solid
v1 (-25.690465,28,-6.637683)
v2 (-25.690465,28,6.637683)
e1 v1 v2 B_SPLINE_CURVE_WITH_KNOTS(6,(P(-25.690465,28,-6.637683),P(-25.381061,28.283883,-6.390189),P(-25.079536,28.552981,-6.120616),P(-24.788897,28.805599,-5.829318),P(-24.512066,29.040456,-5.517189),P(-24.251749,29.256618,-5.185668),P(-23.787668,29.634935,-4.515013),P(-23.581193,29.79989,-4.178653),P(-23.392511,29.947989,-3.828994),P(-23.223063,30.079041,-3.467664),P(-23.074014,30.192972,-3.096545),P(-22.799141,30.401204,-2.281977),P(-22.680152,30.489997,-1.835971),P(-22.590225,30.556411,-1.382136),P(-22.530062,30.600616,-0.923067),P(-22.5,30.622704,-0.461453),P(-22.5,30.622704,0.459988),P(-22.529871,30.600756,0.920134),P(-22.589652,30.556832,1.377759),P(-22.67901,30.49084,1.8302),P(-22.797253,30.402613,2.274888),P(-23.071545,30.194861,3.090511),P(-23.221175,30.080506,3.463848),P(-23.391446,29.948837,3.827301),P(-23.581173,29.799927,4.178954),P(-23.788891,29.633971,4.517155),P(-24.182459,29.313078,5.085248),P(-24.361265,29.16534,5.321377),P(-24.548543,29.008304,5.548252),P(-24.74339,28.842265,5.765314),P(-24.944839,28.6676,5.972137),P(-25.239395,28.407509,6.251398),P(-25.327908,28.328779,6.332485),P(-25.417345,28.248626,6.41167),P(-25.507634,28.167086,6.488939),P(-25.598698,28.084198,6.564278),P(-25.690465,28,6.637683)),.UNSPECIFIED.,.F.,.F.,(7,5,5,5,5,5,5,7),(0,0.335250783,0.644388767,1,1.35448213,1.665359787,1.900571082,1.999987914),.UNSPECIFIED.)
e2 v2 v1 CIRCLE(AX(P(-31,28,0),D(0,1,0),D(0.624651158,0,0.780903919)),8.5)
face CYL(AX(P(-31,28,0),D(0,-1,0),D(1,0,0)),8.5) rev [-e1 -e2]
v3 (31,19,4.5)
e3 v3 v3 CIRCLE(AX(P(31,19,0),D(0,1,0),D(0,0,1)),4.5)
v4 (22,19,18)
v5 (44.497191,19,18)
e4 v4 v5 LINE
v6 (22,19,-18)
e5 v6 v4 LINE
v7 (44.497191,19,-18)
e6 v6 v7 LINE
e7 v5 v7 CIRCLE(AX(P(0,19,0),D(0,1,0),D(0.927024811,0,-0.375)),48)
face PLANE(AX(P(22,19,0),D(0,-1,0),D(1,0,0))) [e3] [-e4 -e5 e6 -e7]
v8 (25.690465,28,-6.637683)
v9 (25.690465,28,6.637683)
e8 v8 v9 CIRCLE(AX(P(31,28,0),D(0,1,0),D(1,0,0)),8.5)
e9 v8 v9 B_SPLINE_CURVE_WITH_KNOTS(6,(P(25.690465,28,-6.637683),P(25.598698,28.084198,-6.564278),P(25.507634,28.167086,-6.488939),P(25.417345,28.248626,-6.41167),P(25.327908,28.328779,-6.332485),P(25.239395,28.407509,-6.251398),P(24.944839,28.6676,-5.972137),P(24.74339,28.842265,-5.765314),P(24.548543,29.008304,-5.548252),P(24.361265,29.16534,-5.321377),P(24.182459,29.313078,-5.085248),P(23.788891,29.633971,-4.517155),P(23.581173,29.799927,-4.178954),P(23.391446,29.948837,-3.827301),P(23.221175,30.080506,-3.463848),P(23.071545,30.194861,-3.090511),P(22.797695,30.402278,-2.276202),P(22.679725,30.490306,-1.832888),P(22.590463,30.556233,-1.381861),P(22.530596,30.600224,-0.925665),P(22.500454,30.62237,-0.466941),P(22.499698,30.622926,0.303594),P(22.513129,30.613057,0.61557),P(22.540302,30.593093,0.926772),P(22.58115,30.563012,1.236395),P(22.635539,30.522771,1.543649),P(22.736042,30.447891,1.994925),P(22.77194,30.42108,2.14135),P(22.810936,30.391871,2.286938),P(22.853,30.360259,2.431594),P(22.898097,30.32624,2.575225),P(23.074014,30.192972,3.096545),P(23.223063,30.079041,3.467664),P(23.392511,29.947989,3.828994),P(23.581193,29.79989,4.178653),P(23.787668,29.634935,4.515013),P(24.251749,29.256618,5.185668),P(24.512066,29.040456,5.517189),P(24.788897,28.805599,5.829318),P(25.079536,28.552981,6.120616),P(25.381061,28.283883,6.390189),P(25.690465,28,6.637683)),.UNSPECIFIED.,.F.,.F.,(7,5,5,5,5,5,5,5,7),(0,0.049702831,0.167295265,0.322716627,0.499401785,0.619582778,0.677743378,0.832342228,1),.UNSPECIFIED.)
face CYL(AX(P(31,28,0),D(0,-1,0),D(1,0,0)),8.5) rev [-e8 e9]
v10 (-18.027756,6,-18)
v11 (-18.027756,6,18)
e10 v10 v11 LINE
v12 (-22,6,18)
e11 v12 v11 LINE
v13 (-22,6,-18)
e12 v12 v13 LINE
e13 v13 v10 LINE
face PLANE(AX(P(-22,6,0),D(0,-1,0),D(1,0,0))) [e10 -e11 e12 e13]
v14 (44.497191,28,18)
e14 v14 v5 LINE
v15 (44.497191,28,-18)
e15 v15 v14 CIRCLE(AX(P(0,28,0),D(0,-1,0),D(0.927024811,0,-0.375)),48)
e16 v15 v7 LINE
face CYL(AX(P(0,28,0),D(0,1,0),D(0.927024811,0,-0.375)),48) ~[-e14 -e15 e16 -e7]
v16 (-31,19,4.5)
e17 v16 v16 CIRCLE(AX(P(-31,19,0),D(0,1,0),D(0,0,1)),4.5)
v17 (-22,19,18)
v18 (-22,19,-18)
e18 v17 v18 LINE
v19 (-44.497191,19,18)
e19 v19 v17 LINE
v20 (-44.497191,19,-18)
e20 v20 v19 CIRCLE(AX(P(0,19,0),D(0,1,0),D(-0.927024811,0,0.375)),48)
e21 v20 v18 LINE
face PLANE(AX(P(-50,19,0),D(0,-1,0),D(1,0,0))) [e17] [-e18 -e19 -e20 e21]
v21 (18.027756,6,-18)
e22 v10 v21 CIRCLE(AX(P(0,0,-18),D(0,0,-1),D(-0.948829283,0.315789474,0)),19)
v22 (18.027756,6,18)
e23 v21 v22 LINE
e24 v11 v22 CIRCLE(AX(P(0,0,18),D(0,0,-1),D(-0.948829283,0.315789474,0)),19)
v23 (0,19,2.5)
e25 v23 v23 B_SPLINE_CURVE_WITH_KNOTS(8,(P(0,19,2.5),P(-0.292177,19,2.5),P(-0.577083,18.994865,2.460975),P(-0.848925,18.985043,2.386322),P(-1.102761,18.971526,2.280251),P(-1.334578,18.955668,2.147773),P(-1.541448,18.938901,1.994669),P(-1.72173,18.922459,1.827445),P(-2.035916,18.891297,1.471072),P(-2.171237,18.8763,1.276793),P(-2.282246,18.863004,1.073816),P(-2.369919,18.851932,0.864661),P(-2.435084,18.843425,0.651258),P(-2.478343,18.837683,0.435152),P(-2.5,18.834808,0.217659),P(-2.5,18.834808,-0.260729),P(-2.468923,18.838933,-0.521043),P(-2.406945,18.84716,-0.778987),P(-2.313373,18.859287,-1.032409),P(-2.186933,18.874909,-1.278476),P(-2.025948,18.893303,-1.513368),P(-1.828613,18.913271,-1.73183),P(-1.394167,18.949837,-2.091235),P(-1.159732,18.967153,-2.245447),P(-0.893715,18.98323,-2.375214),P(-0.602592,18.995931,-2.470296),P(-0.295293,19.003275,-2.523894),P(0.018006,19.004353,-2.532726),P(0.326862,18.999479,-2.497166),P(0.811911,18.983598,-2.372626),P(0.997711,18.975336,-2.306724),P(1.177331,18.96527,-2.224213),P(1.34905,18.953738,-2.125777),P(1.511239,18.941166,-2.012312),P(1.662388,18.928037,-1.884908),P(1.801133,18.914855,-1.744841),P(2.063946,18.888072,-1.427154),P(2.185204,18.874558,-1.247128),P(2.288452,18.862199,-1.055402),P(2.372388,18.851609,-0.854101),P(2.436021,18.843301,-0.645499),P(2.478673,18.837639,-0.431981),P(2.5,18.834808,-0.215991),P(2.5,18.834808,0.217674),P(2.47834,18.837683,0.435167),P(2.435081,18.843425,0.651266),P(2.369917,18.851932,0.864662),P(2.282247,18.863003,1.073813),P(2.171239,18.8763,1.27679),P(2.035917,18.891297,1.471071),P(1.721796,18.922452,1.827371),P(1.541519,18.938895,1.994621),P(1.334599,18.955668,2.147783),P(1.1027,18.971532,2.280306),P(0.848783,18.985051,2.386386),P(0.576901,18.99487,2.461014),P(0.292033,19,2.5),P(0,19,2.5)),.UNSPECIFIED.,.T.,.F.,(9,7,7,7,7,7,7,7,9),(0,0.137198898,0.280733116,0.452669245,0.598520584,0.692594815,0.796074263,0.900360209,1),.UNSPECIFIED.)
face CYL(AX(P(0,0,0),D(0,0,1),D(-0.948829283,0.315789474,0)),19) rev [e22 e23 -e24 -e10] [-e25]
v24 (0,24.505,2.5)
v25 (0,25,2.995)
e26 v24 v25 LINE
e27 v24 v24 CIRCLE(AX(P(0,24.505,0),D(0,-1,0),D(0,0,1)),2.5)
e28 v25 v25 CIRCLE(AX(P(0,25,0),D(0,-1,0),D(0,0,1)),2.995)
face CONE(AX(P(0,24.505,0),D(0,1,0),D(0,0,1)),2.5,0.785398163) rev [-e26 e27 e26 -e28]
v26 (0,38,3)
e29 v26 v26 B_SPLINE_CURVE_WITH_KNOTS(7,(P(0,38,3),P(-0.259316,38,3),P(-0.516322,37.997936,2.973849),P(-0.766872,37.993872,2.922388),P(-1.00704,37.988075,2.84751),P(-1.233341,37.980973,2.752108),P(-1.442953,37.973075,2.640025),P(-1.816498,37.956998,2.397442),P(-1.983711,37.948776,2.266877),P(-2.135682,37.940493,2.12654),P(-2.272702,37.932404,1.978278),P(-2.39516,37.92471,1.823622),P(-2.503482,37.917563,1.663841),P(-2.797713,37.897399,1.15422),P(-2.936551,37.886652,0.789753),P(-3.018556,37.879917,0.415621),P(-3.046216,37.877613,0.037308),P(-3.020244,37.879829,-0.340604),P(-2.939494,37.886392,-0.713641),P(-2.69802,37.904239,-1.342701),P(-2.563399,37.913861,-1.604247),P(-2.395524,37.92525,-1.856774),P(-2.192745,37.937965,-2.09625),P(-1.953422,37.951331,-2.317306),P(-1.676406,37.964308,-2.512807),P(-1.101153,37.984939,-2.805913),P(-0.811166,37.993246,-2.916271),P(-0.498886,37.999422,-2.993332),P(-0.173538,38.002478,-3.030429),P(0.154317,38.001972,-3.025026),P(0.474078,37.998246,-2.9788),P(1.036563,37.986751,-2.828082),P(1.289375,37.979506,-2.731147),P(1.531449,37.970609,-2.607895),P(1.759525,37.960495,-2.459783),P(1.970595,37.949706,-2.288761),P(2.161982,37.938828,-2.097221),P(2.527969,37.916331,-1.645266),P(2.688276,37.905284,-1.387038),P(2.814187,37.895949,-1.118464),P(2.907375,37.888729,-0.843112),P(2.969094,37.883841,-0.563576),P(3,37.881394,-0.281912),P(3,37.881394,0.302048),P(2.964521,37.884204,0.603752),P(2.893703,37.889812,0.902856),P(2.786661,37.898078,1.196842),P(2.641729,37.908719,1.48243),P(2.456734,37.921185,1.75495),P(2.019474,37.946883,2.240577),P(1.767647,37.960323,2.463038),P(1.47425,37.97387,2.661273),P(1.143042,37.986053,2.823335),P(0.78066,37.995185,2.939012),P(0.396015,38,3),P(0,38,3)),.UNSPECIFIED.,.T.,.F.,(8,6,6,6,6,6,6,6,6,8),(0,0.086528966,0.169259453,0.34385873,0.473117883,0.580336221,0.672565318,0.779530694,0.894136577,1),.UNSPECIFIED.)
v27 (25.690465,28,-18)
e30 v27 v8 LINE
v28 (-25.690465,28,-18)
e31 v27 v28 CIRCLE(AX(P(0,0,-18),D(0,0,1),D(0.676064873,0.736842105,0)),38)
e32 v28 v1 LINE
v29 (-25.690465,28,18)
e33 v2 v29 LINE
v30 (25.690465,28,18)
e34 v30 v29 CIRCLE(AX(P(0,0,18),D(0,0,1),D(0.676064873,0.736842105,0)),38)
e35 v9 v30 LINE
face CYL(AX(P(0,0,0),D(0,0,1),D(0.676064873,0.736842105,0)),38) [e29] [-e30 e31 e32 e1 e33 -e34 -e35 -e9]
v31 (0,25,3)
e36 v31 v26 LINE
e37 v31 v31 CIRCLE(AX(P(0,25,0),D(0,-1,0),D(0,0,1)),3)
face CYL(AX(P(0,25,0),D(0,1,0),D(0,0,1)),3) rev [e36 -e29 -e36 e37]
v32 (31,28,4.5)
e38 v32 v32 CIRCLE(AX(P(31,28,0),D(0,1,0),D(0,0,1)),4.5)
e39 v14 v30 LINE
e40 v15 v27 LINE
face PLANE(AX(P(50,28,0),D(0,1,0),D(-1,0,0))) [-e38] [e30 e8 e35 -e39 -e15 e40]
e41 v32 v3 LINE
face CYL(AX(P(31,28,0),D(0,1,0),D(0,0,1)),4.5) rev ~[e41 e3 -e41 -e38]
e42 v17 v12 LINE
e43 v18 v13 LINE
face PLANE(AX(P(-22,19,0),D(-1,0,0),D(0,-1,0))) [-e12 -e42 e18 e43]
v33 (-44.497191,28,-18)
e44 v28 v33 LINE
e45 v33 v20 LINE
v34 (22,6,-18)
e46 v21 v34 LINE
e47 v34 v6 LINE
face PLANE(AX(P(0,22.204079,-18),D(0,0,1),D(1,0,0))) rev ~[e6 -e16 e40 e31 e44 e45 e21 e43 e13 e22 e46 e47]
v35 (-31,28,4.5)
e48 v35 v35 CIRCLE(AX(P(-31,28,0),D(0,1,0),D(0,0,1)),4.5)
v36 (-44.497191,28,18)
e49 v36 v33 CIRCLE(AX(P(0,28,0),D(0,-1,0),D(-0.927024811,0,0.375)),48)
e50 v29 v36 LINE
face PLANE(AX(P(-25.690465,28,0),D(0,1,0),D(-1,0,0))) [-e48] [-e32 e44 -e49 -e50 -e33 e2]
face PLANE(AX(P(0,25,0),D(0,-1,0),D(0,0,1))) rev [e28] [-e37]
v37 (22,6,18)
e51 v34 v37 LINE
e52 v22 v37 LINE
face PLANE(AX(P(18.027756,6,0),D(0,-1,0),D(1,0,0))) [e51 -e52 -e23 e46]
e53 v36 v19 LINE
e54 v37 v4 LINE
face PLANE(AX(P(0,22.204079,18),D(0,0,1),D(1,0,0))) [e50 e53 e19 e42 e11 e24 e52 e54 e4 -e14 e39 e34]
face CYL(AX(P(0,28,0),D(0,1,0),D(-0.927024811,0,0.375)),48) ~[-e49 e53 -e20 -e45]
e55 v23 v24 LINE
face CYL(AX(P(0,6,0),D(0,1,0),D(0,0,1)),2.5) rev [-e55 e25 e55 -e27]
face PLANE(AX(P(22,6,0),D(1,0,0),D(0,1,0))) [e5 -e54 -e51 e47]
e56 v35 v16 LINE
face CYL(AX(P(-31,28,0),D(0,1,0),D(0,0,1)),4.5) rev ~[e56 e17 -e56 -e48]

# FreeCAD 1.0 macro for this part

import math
import FreeCAD as App
import Part
import Sketcher

V = App.Vector
Q = App.Units.Quantity


def add_polygon(sketch, points):
    """Adds a closed chain of lines whose ends are joined by coincident constraints."""
    first, n = sketch.GeometryCount, len(points)
    for a, b in zip(points, points[1:] + points[:1]):
        sketch.addGeometry(Part.LineSegment(App.Vector(*a, 0), App.Vector(*b, 0)), False)
    for i in range(n):
        sketch.addConstraint(Sketcher.Constraint("Coincident", first + i, 2, first + (i + 1) % n, 1))

doc = App.newDocument("Part")
params = doc.addObject("Spreadsheet::Sheet", "Params")
for row, (alias, value) in enumerate([
    ("sketch1_radius", "19 mm"),
    ("sketch1_radius2", "38 mm"),
    ("sketch1_width", "28 mm"),
    ("sketch1_height", "13 mm"),
    ("sketch1_height2", "9 mm"),
    ("pad1_length", "36 mm"),
    ("sketch2_diameter", "9 mm"),
    ("sketch3_diameter", "17 mm"),
    ("sketch4_radius", "48 mm"),
    ("sketch4_height", "36 mm"),
    ("sketch5_diameter", "17 mm"),
    ("sketch6_width", "32 mm"),
    ("sketch6_width2", "13 mm"),
    ("sketch6_height", "3 mm"),
    ("sketch6_height2", "2.5 mm"),
    ("groove_angle", "360 deg"),
], start=1):
    params.set(f"A{row}", alias)
    params.set(f"B{row}", "=" + value)
    params.setAlias(f"B{row}", alias)

body = doc.addObject("PartDesign::Body", "Body")

# Sketch on XY plane
sketch1 = body.newObject("Sketcher::SketchObject", "Sketch")
sketch1.AttachmentSupport = (doc.getObject("XY_Plane"), [""])
sketch1.MapMode = "FlatFace"
sketch1.addGeometry(Part.LineSegment(V(-22, 6, 0), V(-18.027756, 6, 0)), False)
sketch1.addGeometry(Part.ArcOfCircle(Part.Circle(V(0, 0, 0), V(0, 0, 1), 19), math.radians(18.40848), math.radians(161.59152)), False)
sketch1.addGeometry(Part.LineSegment(V(18.027756, 6, 0), V(22, 6, 0)), False)
sketch1.addGeometry(Part.LineSegment(V(22, 6, 0), V(22, 19, 0)), False)
sketch1.addGeometry(Part.LineSegment(V(22, 19, 0), V(50, 19, 0)), False)
sketch1.addGeometry(Part.LineSegment(V(50, 19, 0), V(50, 28, 0)), False)
sketch1.addGeometry(Part.LineSegment(V(50, 28, 0), V(25.690465, 28, 0)), False)
sketch1.addGeometry(Part.ArcOfCircle(Part.Circle(V(0, 0, 0), V(0, 0, 1), 38), math.radians(47.463102), math.radians(132.536898)), False)
sketch1.addGeometry(Part.LineSegment(V(-25.690465, 28, 0), V(-50, 28, 0)), False)
sketch1.addGeometry(Part.LineSegment(V(-50, 28, 0), V(-50, 19, 0)), False)
sketch1.addGeometry(Part.LineSegment(V(-50, 19, 0), V(-22, 19, 0)), False)
sketch1.addGeometry(Part.LineSegment(V(-22, 19, 0), V(-22, 6, 0)), False)
sketch1.addConstraint(Sketcher.Constraint("Coincident", 0, 2, 1, 2))
sketch1.addConstraint(Sketcher.Constraint("Coincident", 1, 1, 2, 1))
sketch1.addConstraint(Sketcher.Constraint("Coincident", 2, 2, 3, 1))
sketch1.addConstraint(Sketcher.Constraint("Coincident", 3, 2, 4, 1))
sketch1.addConstraint(Sketcher.Constraint("Coincident", 4, 2, 5, 1))
sketch1.addConstraint(Sketcher.Constraint("Coincident", 5, 2, 6, 1))
sketch1.addConstraint(Sketcher.Constraint("Coincident", 6, 2, 7, 1))
sketch1.addConstraint(Sketcher.Constraint("Coincident", 7, 2, 8, 1))
sketch1.addConstraint(Sketcher.Constraint("Coincident", 8, 2, 9, 1))
sketch1.addConstraint(Sketcher.Constraint("Coincident", 9, 2, 10, 1))
sketch1.addConstraint(Sketcher.Constraint("Coincident", 10, 2, 11, 1))
sketch1.addConstraint(Sketcher.Constraint("Coincident", 11, 2, 0, 1))
sketch1.addConstraint(Sketcher.Constraint("Horizontal", 0))
sketch1.addConstraint(Sketcher.Constraint("Horizontal", 2))
sketch1.addConstraint(Sketcher.Constraint("Vertical", 3))
sketch1.addConstraint(Sketcher.Constraint("Horizontal", 4))
sketch1.addConstraint(Sketcher.Constraint("Vertical", 5))
sketch1.addConstraint(Sketcher.Constraint("Horizontal", 6))
sketch1.addConstraint(Sketcher.Constraint("Horizontal", 8))
sketch1.addConstraint(Sketcher.Constraint("Vertical", 9))
sketch1.addConstraint(Sketcher.Constraint("Horizontal", 10))
sketch1.addConstraint(Sketcher.Constraint("Vertical", 11))
sketch1.addConstraint(Sketcher.Constraint("Coincident", 1, 3, -1, 1))
sketch1.addConstraint(Sketcher.Constraint("Coincident", 7, 3, -1, 1))
sketch1.addConstraint(Sketcher.Constraint("Symmetric", 5, 2, 8, 2, -2))
sketch1.addConstraint(Sketcher.Constraint("Symmetric", 3, 2, 10, 2, -2))
sketch1.addConstraint(Sketcher.Constraint("Horizontal", 0, 2, 1, 1))
sketch1.addConstraint(Sketcher.Constraint("Radius", 1, 19.0))
sketch1.addConstraint(Sketcher.Constraint("Radius", 7, 38.0))
sketch1.addConstraint(Sketcher.Constraint("DistanceX", 4, 1, 4, 2, 28.0))
sketch1.addConstraint(Sketcher.Constraint("DistanceY", 3, 1, 3, 2, 13.0))
sketch1.addConstraint(Sketcher.Constraint("DistanceY", 5, 1, 5, 2, 9.0))
sketch1.addConstraint(Sketcher.Constraint("DistanceY", -1, 1, 0, 2, 6.0))
sketch1.addConstraint(Sketcher.Constraint("DistanceX", -1, 1, 2, 2, 22.0))
sketch1.setExpression("Constraints[27]", "Params.sketch1_radius")
sketch1.setExpression("Constraints[28]", "Params.sketch1_radius2")
sketch1.setExpression("Constraints[29]", "Params.sketch1_width")
sketch1.setExpression("Constraints[30]", "Params.sketch1_height")
sketch1.setExpression("Constraints[31]", "Params.sketch1_height2")
pad1 = body.newObject("PartDesign::Pad", "Pad")
pad1.Profile = sketch1
pad1.setExpression("Length", "Params.pad1_length")
pad1.Midplane = True

# Sketch on XZ plane
sketch2 = body.newObject("Sketcher::SketchObject", "Sketch001")
sketch2.AttachmentSupport = (doc.getObject("XZ_Plane"), [""])
sketch2.MapMode = "FlatFace"
sketch2.AttachmentOffset = App.Placement(V(0, 0, -28), App.Rotation())
sketch2.addGeometry(Part.Circle(V(-31, 0, 0), V(0, 0, 1), 4.5), False)
sketch2.addGeometry(Part.Circle(V(31, 0, 0), V(0, 0, 1), 4.5), False)
sketch2.addConstraint(Sketcher.Constraint("Equal", 0, 1))
sketch2.addConstraint(Sketcher.Constraint("Symmetric", 0, 3, 1, 3, -1, 1))
sketch2.addConstraint(Sketcher.Constraint("PointOnObject", 0, 3, -1))
sketch2.addConstraint(Sketcher.Constraint("Diameter", 0, 9.0))
sketch2.addConstraint(Sketcher.Constraint("DistanceX", 0, 3, -1, 1, 31.0))
sketch2.setExpression("Constraints[3]", "Params.sketch2_diameter")
pocket1 = body.newObject("PartDesign::Pocket", "Pocket")
pocket1.Profile = sketch2
pocket1.Type = "ThroughAll"
pocket1.Reversed = True

# Sketch on XZ plane
sketch3 = body.newObject("Sketcher::SketchObject", "Sketch002")
sketch3.AttachmentSupport = (doc.getObject("XZ_Plane"), [""])
sketch3.MapMode = "FlatFace"
sketch3.AttachmentOffset = App.Placement(V(0, 0, -28), App.Rotation())
sketch3.addGeometry(Part.Circle(V(-31, 0, 0), V(0, 0, 1), 8.5), False)
sketch3.addConstraint(Sketcher.Constraint("PointOnObject", 0, 3, -1))
sketch3.addConstraint(Sketcher.Constraint("Diameter", 0, 17.0))
sketch3.addConstraint(Sketcher.Constraint("DistanceX", 0, 3, -1, 1, 31.0))
sketch3.setExpression("Constraints[1]", "Params.sketch3_diameter")
pocket2 = body.newObject("PartDesign::Pocket", "Pocket001")
pocket2.Profile = sketch3
pocket2.Type = "ThroughAll"

# Sketch on XZ plane
sketch4 = body.newObject("Sketcher::SketchObject", "Sketch003")
sketch4.AttachmentSupport = (doc.getObject("XZ_Plane"), [""])
sketch4.MapMode = "FlatFace"
sketch4.AttachmentOffset = App.Placement(V(0, 0, -28), App.Rotation())
sketch4.addGeometry(Part.LineSegment(V(-44.497191, -18, 0), V(-50, -18, 0)), False)
sketch4.addGeometry(Part.LineSegment(V(-50, -18, 0), V(-50, 18, 0)), False)
sketch4.addGeometry(Part.LineSegment(V(-50, 18, 0), V(-44.497191, 18, 0)), False)
sketch4.addGeometry(Part.ArcOfCircle(Part.Circle(V(0, 0, 0), V(0, 0, 1), 48), math.radians(157.975687), math.radians(202.024313)), False)
sketch4.addGeometry(Part.LineSegment(V(50, -18, 0), V(44.497191, -18, 0)), False)
sketch4.addGeometry(Part.ArcOfCircle(Part.Circle(V(0, 0, 0), V(0, 0, 1), 48), math.radians(-22.024313), math.radians(22.024313)), False)
sketch4.addGeometry(Part.LineSegment(V(44.497191, 18, 0), V(50, 18, 0)), False)
sketch4.addGeometry(Part.LineSegment(V(50, 18, 0), V(50, -18, 0)), False)
sketch4.addConstraint(Sketcher.Constraint("Coincident", 0, 2, 1, 1))
sketch4.addConstraint(Sketcher.Constraint("Coincident", 1, 2, 2, 1))
sketch4.addConstraint(Sketcher.Constraint("Coincident", 2, 2, 3, 1))
sketch4.addConstraint(Sketcher.Constraint("Coincident", 3, 2, 0, 1))
sketch4.addConstraint(Sketcher.Constraint("Coincident", 4, 2, 5, 1))
sketch4.addConstraint(Sketcher.Constraint("Coincident", 5, 2, 6, 1))
sketch4.addConstraint(Sketcher.Constraint("Coincident", 6, 2, 7, 1))
sketch4.addConstraint(Sketcher.Constraint("Coincident", 7, 2, 4, 1))
sketch4.addConstraint(Sketcher.Constraint("Horizontal", 0))
sketch4.addConstraint(Sketcher.Constraint("Vertical", 1))
sketch4.addConstraint(Sketcher.Constraint("Horizontal", 2))
sketch4.addConstraint(Sketcher.Constraint("Horizontal", 4))
sketch4.addConstraint(Sketcher.Constraint("Horizontal", 6))
sketch4.addConstraint(Sketcher.Constraint("Vertical", 7))
sketch4.addConstraint(Sketcher.Constraint("Coincident", 3, 3, -1, 1))
sketch4.addConstraint(Sketcher.Constraint("Coincident", 5, 3, -1, 1))
sketch4.addConstraint(Sketcher.Constraint("Equal", 3, 5))
sketch4.addConstraint(Sketcher.Constraint("Symmetric", 0, 2, 6, 2, -1, 1))
sketch4.addConstraint(Sketcher.Constraint("Horizontal", 3, 2, 4, 2))
sketch4.addConstraint(Sketcher.Constraint("Horizontal", 2, 2, 5, 2))
sketch4.addConstraint(Sketcher.Constraint("Radius", 3, 48.0))
sketch4.addConstraint(Sketcher.Constraint("DistanceY", 1, 1, 1, 2, 36.0))
sketch4.addConstraint(Sketcher.Constraint("DistanceX", 0, 2, -1, 1, 50.0))
sketch4.setExpression("Constraints[20]", "Params.sketch4_radius")
sketch4.setExpression("Constraints[21]", "Params.sketch4_height")
pocket3 = body.newObject("PartDesign::Pocket", "Pocket002")
pocket3.Profile = sketch4
pocket3.Type = "ThroughAll"
pocket3.Reversed = True

# Sketch on XZ plane
sketch5 = body.newObject("Sketcher::SketchObject", "Sketch004")
sketch5.AttachmentSupport = (doc.getObject("XZ_Plane"), [""])
sketch5.MapMode = "FlatFace"
sketch5.AttachmentOffset = App.Placement(V(0, 0, -28), App.Rotation())
sketch5.addGeometry(Part.Circle(V(31, 0, 0), V(0, 0, 1), 8.5), False)
sketch5.addConstraint(Sketcher.Constraint("PointOnObject", 0, 3, -1))
sketch5.addConstraint(Sketcher.Constraint("Diameter", 0, 17.0))
sketch5.addConstraint(Sketcher.Constraint("DistanceX", -1, 1, 0, 3, 31.0))
sketch5.setExpression("Constraints[1]", "Params.sketch5_diameter")
pocket4 = body.newObject("PartDesign::Pocket", "Pocket003")
pocket4.Profile = sketch5
pocket4.Type = "ThroughAll"

# Sketch on YZ plane
sketch6 = body.newObject("Sketcher::SketchObject", "Sketch005")
sketch6.AttachmentSupport = (doc.getObject("YZ_Plane"), [""])
sketch6.MapMode = "FlatFace"
add_polygon(sketch6, [(6, 0), (38, 0), (38, 3), (25, 3), (25, 2.995), (24.505, 2.5), (6, 2.5)])  # lines 0-6
sketch6.addConstraint(Sketcher.Constraint("Horizontal", 0))
sketch6.addConstraint(Sketcher.Constraint("Vertical", 1))
sketch6.addConstraint(Sketcher.Constraint("Horizontal", 2))
sketch6.addConstraint(Sketcher.Constraint("Vertical", 3))
sketch6.addConstraint(Sketcher.Constraint("Horizontal", 5))
sketch6.addConstraint(Sketcher.Constraint("Vertical", 6))
sketch6.addConstraint(Sketcher.Constraint("PointOnObject", 0, 2, -1))
sketch6.addConstraint(Sketcher.Constraint("DistanceX", 0, 1, 0, 2, 32.0))
sketch6.addConstraint(Sketcher.Constraint("DistanceX", 2, 2, 2, 1, 13.0))
sketch6.addConstraint(Sketcher.Constraint("DistanceY", 1, 1, 1, 2, 3.0))
sketch6.addConstraint(Sketcher.Constraint("Angle", 4, Q("-135 deg")))
sketch6.addConstraint(Sketcher.Constraint("DistanceY", 6, 2, 6, 1, 2.5))
sketch6.addConstraint(Sketcher.Constraint("DistanceX", -1, 1, 0, 2, 38.0))
sketch6.addConstraint(Sketcher.Constraint("DistanceX", 5, 2, 5, 1, 18.505))
sketch6.setExpression("Constraints[14]", "Params.sketch6_width")
sketch6.setExpression("Constraints[15]", "Params.sketch6_width2")
sketch6.setExpression("Constraints[16]", "Params.sketch6_height")
sketch6.setExpression("Constraints[18]", "Params.sketch6_height2")
groove = body.newObject("PartDesign::Groove", "Groove")
groove.Profile = sketch6
groove.ReferenceAxis = (sketch6, ["H_Axis"])
groove.setExpression("Angle", "Params.groove_angle")

doc.recompute()
